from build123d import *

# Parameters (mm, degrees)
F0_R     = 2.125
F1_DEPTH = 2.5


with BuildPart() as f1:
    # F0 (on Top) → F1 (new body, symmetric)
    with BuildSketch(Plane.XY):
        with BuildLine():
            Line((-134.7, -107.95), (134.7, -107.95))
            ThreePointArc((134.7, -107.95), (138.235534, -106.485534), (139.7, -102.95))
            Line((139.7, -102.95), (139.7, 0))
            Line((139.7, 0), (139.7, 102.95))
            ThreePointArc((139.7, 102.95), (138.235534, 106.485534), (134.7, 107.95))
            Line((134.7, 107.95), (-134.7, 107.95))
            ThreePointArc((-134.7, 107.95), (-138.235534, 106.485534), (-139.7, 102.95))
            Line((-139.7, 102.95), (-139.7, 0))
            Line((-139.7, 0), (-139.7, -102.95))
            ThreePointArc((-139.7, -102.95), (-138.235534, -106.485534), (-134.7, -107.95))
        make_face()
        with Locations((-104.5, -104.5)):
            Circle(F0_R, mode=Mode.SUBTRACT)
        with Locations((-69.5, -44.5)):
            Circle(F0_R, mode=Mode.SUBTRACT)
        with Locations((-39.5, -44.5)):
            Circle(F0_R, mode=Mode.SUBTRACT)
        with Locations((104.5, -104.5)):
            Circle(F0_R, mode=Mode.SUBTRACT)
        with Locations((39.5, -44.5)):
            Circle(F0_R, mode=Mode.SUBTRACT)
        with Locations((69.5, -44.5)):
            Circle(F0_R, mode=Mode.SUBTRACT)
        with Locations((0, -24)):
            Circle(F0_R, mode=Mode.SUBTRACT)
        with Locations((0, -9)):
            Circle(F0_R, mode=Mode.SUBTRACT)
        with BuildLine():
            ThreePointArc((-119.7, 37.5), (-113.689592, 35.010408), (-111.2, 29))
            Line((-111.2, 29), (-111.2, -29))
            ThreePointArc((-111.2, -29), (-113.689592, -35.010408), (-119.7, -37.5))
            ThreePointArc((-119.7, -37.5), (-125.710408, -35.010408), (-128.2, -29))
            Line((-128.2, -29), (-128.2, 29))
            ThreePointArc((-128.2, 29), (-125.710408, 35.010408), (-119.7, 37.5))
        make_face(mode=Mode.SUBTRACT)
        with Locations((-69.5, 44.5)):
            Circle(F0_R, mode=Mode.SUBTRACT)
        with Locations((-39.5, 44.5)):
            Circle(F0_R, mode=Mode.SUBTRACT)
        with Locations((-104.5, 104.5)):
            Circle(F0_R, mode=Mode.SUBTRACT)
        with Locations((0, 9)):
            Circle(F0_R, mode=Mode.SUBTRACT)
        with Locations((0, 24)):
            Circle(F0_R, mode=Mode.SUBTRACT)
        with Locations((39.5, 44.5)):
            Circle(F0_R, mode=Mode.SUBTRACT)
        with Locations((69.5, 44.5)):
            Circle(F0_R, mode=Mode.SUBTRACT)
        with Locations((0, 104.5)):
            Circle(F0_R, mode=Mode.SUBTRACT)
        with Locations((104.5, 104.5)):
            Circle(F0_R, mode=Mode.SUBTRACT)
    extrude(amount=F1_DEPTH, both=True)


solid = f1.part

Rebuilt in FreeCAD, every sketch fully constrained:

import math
import FreeCAD as App
import Part
import Sketcher
Q = App.Units.Quantity

doc = App.newDocument("Part")
body = doc.addObject("PartDesign::Body", "Body")

sketch1 = body.newObject("Sketcher::SketchObject", "Sketch")
sketch1.AttachmentSupport = (doc.getObject("XY_Plane"), [""])
sketch1.MapMode = "FlatFace"
sketch1.addGeometry(Part.LineSegment(App.Vector(-134.7, -108, 0), App.Vector(134.7, -108, 0)), False)
sketch1.addGeometry(Part.ArcOfCircle(Part.Circle(App.Vector(134.7, -103, 0), App.Vector(0, 0, 1), 5), math.radians(-90), math.radians(0)), False)
sketch1.addGeometry(Part.LineSegment(App.Vector(139.7, -103, 0), App.Vector(139.7, 103, 0)), False)
sketch1.addGeometry(Part.ArcOfCircle(Part.Circle(App.Vector(134.7, 103, 0), App.Vector(0, 0, 1), 5), math.radians(0), math.radians(90)), False)
sketch1.addGeometry(Part.LineSegment(App.Vector(134.7, 108, 0), App.Vector(-134.7, 108, 0)), False)
sketch1.addGeometry(Part.ArcOfCircle(Part.Circle(App.Vector(-134.7, 103, 0), App.Vector(0, 0, 1), 5), math.radians(90), math.radians(180)), False)
sketch1.addGeometry(Part.LineSegment(App.Vector(-139.7, 103, 0), App.Vector(-139.7, -103, 0)), False)
sketch1.addGeometry(Part.ArcOfCircle(Part.Circle(App.Vector(-134.7, -103, 0), App.Vector(0, 0, 1), 5), math.radians(180), math.radians(270)), False)
sketch1.addGeometry(Part.Circle(App.Vector(-104.5, -104.5, 0), App.Vector(0, 0, 1), 2.1), False)
sketch1.addGeometry(Part.Circle(App.Vector(-69.5, -44.5, 0), App.Vector(0, 0, 1), 2.1), False)
sketch1.addGeometry(Part.ArcOfCircle(Part.Circle(App.Vector(-119.7, 29, 0), App.Vector(0, 0, 1), 8.5), math.radians(90), math.radians(180)), False)
sketch1.addGeometry(Part.ArcOfCircle(Part.Circle(App.Vector(-119.7, 29, 0), App.Vector(0, 0, 1), 8.5), math.radians(0), math.radians(90)), False)
sketch1.addGeometry(Part.LineSegment(App.Vector(-111.2, 29, 0), App.Vector(-111.2, -29, 0)), False)
sketch1.addGeometry(Part.ArcOfCircle(Part.Circle(App.Vector(-119.7, -29, 0), App.Vector(0, 0, 1), 8.5), math.radians(-90), math.radians(0)), False)
sketch1.addGeometry(Part.ArcOfCircle(Part.Circle(App.Vector(-119.7, -29, 0), App.Vector(0, 0, 1), 8.5), math.radians(180), math.radians(270)), False)
sketch1.addGeometry(Part.LineSegment(App.Vector(-128.2, -29, 0), App.Vector(-128.2, 29, 0)), False)
sketch1.addGeometry(Part.Circle(App.Vector(-39.5, -44.5, 0), App.Vector(0, 0, 1), 2.1), False)
sketch1.addGeometry(Part.Circle(App.Vector(104.5, -104.5, 0), App.Vector(0, 0, 1), 2.1), False)
sketch1.addGeometry(Part.Circle(App.Vector(39.5, -44.5, 0), App.Vector(0, 0, 1), 2.1), False)
sketch1.addGeometry(Part.Circle(App.Vector(0, -24, 0), App.Vector(0, 0, 1), 2.1), False)
sketch1.addGeometry(Part.Circle(App.Vector(0, -9, 0), App.Vector(0, 0, 1), 2.1), False)
sketch1.addGeometry(Part.Circle(App.Vector(69.5, -44.5, 0), App.Vector(0, 0, 1), 2.1), False)
sketch1.addGeometry(Part.Circle(App.Vector(-69.5, 44.5, 0), App.Vector(0, 0, 1), 2.1), False)
sketch1.addGeometry(Part.Circle(App.Vector(-39.5, 44.5, 0), App.Vector(0, 0, 1), 2.1), False)
sketch1.addGeometry(Part.Circle(App.Vector(-104.5, 104.5, 0), App.Vector(0, 0, 1), 2.1), False)
sketch1.addGeometry(Part.Circle(App.Vector(0, 9, 0), App.Vector(0, 0, 1), 2.1), False)
sketch1.addGeometry(Part.Circle(App.Vector(0, 24, 0), App.Vector(0, 0, 1), 2.1), False)
sketch1.addGeometry(Part.Circle(App.Vector(39.5, 44.5, 0), App.Vector(0, 0, 1), 2.1), False)
sketch1.addGeometry(Part.Circle(App.Vector(69.5, 44.5, 0), App.Vector(0, 0, 1), 2.1), False)
sketch1.addGeometry(Part.Circle(App.Vector(0, 104.5, 0), App.Vector(0, 0, 1), 2.1), False)
sketch1.addGeometry(Part.Circle(App.Vector(104.5, 104.5, 0), App.Vector(0, 0, 1), 2.1), False)
sketch1.addConstraint(Sketcher.Constraint("Tangent", 0, 2, 1, 1))
sketch1.addConstraint(Sketcher.Constraint("Tangent", 1, 2, 2, 1))
sketch1.addConstraint(Sketcher.Constraint("Tangent", 2, 2, 3, 1))
sketch1.addConstraint(Sketcher.Constraint("Tangent", 3, 2, 4, 1))
sketch1.addConstraint(Sketcher.Constraint("Tangent", 4, 2, 5, 1))
sketch1.addConstraint(Sketcher.Constraint("Tangent", 5, 2, 6, 1))
sketch1.addConstraint(Sketcher.Constraint("Tangent", 6, 2, 7, 1))
sketch1.addConstraint(Sketcher.Constraint("Tangent", 7, 2, 0, 1))
sketch1.addConstraint(Sketcher.Constraint("Tangent", 10, 1, 11, 2))
sketch1.addConstraint(Sketcher.Constraint("Tangent", 11, 1, 12, 1))
sketch1.addConstraint(Sketcher.Constraint("Tangent", 12, 2, 13, 2))
sketch1.addConstraint(Sketcher.Constraint("Tangent", 13, 1, 14, 2))
sketch1.addConstraint(Sketcher.Constraint("Tangent", 14, 1, 15, 1))
sketch1.addConstraint(Sketcher.Constraint("Tangent", 15, 2, 10, 2))
sketch1.addConstraint(Sketcher.Constraint("Horizontal", 0))
sketch1.addConstraint(Sketcher.Constraint("Vertical", 2))
sketch1.addConstraint(Sketcher.Constraint("Horizontal", 4))
sketch1.addConstraint(Sketcher.Constraint("Vertical", 6))
sketch1.addConstraint(Sketcher.Constraint("Vertical", 12))
sketch1.addConstraint(Sketcher.Constraint("Vertical", 15))
sketch1.addConstraint(Sketcher.Constraint("Equal", 1, 3))
sketch1.addConstraint(Sketcher.Constraint("Equal", 3, 5))
sketch1.addConstraint(Sketcher.Constraint("Equal", 5, 7))
sketch1.addConstraint(Sketcher.Constraint("Equal", 8, 9))
sketch1.addConstraint(Sketcher.Constraint("Equal", 10, 11))
sketch1.addConstraint(Sketcher.Constraint("Equal", 11, 13))
sketch1.addConstraint(Sketcher.Constraint("Equal", 9, 16))
sketch1.addConstraint(Sketcher.Constraint("Equal", 16, 17))
sketch1.addConstraint(Sketcher.Constraint("Equal", 17, 18))
sketch1.addConstraint(Sketcher.Constraint("Equal", 18, 19))
sketch1.addConstraint(Sketcher.Constraint("Equal", 19, 20))
sketch1.addConstraint(Sketcher.Constraint("Equal", 20, 21))
sketch1.addConstraint(Sketcher.Constraint("Equal", 21, 22))
sketch1.addConstraint(Sketcher.Constraint("Equal", 22, 23))
sketch1.addConstraint(Sketcher.Constraint("Equal", 23, 24))
sketch1.addConstraint(Sketcher.Constraint("Equal", 24, 25))
sketch1.addConstraint(Sketcher.Constraint("Equal", 25, 26))
sketch1.addConstraint(Sketcher.Constraint("Equal", 26, 27))
sketch1.addConstraint(Sketcher.Constraint("Equal", 27, 28))
sketch1.addConstraint(Sketcher.Constraint("Equal", 28, 29))
sketch1.addConstraint(Sketcher.Constraint("Equal", 29, 30))
sketch1.addConstraint(Sketcher.Constraint("Symmetric", 1, 3, 5, 3, -1, 1))
sketch1.addConstraint(Sketcher.Constraint("Symmetric", 21, 3, 22, 3, -1, 1))
sketch1.addConstraint(Sketcher.Constraint("Symmetric", 18, 3, 23, 3, -1, 1))
sketch1.addConstraint(Sketcher.Constraint("Symmetric", 17, 3, 24, 3, -1, 1))
sketch1.addConstraint(Sketcher.Constraint("Symmetric", 20, 3, 25, 3, -1, 1))
sketch1.addConstraint(Sketcher.Constraint("Symmetric", 19, 3, 26, 3, -1, 1))
sketch1.addConstraint(Sketcher.Constraint("Symmetric", 16, 3, 27, 3, -1, 1))
sketch1.addConstraint(Sketcher.Constraint("Symmetric", 9, 3, 28, 3, -1, 1))
sketch1.addConstraint(Sketcher.Constraint("Symmetric", 8, 3, 30, 3, -1, 1))
sketch1.addConstraint(Sketcher.Constraint("Symmetric", 8, 3, 17, 3, -2))
sketch1.addConstraint(Sketcher.Constraint("Symmetric", 16, 3, 18, 3, -2))
sketch1.addConstraint(Sketcher.Constraint("Symmetric", 9, 3, 21, 3, -2))
sketch1.addConstraint(Sketcher.Constraint("Symmetric", 10, 1, 13, 1, -1))
sketch1.addConstraint(Sketcher.Constraint("PointOnObject", 19, 3, -2))
sketch1.addConstraint(Sketcher.Constraint("PointOnObject", 20, 3, -2))
sketch1.addConstraint(Sketcher.Constraint("PointOnObject", 29, 3, -2))
sketch1.addConstraint(Sketcher.Constraint("Horizontal", 9, 3, 16, 3))
sketch1.addConstraint(Sketcher.Constraint("Horizontal", 24, 3, 29, 3))
sketch1.addConstraint(Sketcher.Constraint("Vertical", 14, 3, 10, 1))
sketch1.addConstraint(Sketcher.Constraint("Radius", 1, Q("5 mm")))
sketch1.addConstraint(Sketcher.Constraint("Radius", 10, Q("8.499999 mm")))
sketch1.addConstraint(Sketcher.Constraint("Diameter", 8, Q("4.25 mm")))
sketch1.addConstraint(Sketcher.Constraint("DistanceY", 12, 2, 12, 1, Q("58 mm")))
sketch1.addConstraint(Sketcher.Constraint("DistanceX", 0, 1, 0, 2, Q("269.4 mm")))
sketch1.addConstraint(Sketcher.Constraint("DistanceY", 2, 1, 2, 2, Q("205.9 mm")))
sketch1.addConstraint(Sketcher.Constraint("DistanceY", 19, 3, -1, 1, Q("24 mm")))
sketch1.addConstraint(Sketcher.Constraint("DistanceY", 20, 3, -1, 1, Q("9 mm")))
sketch1.addConstraint(Sketcher.Constraint("DistanceX", 8, 3, 9, 3, Q("35 mm")))
sketch1.addConstraint(Sketcher.Constraint("DistanceY", 8, 3, 9, 3, Q("60 mm")))
sketch1.addConstraint(Sketcher.Constraint("DistanceX", 5, 3, 10, 3, Q("14.999999 mm")))
sketch1.addConstraint(Sketcher.Constraint("DistanceX", 9, 3, 16, 3, Q("30 mm")))
sketch1.addConstraint(Sketcher.Constraint("DistanceX", 16, 3, 17, 3, Q("144 mm")))
sketch1.addConstraint(Sketcher.Constraint("DistanceY", 9, 3, 22, 3, Q("89 mm")))
pad1 = body.newObject("PartDesign::Pad", "Pad")
pad1.Profile = sketch1
pad1.Length = 5
pad1.Midplane = True

doc.recompute()
